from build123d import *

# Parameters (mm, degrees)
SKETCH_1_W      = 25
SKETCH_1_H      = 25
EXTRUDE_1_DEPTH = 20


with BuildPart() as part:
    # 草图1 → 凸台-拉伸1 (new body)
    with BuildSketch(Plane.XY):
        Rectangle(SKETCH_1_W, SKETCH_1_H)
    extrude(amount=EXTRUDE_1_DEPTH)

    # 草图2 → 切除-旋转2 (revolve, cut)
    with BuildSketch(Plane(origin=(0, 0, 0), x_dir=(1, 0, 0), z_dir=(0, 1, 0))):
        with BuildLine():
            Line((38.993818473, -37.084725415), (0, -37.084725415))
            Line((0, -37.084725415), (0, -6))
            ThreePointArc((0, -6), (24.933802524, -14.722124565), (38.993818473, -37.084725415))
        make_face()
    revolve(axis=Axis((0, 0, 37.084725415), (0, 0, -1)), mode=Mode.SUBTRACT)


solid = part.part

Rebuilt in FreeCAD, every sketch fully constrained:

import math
import FreeCAD as App
import Part
import Sketcher

V = App.Vector

doc = App.newDocument("Part")
body = doc.addObject("PartDesign::Body", "Body")

# Sketch on XY plane
sketch1 = body.newObject("Sketcher::SketchObject", "Sketch")
sketch1.AttachmentSupport = (doc.getObject("XY_Plane"), [""])
sketch1.MapMode = "FlatFace"
sketch1.addGeometry(Part.LineSegment(V(-12.5, 12.5, 0), V(-12.5, -12.5, 0)), False)
sketch1.addGeometry(Part.LineSegment(V(-12.5, -12.5, 0), V(12.5, -12.5, 0)), False)
sketch1.addGeometry(Part.LineSegment(V(12.5, -12.5, 0), V(12.5, 12.5, 0)), False)
sketch1.addGeometry(Part.LineSegment(V(12.5, 12.5, 0), V(-12.5, 12.5, 0)), False)
sketch1.addConstraint(Sketcher.Constraint("Coincident", 0, 2, 1, 1))
sketch1.addConstraint(Sketcher.Constraint("Coincident", 1, 2, 2, 1))
sketch1.addConstraint(Sketcher.Constraint("Coincident", 2, 2, 3, 1))
sketch1.addConstraint(Sketcher.Constraint("Coincident", 3, 2, 0, 1))
sketch1.addConstraint(Sketcher.Constraint("Vertical", 0))
sketch1.addConstraint(Sketcher.Constraint("Horizontal", 1))
sketch1.addConstraint(Sketcher.Constraint("Vertical", 2))
sketch1.addConstraint(Sketcher.Constraint("Horizontal", 3))
sketch1.addConstraint(Sketcher.Constraint("Symmetric", 0, 2, 2, 2, -1, 1))
sketch1.addConstraint(Sketcher.Constraint("Equal", 3, 0))
sketch1.addConstraint(Sketcher.Constraint("DistanceX", 1, 1, 1, 2, 25.0))
pad1 = body.newObject("PartDesign::Pad", "Pad")
pad1.Profile = sketch1
pad1.Length = 20

# Sketch on XZ plane
sketch2 = body.newObject("Sketcher::SketchObject", "Sketch001")
sketch2.AttachmentSupport = (doc.getObject("XZ_Plane"), [""])
sketch2.MapMode = "FlatFace"
sketch2.addGeometry(Part.LineSegment(V(0, 37.084725, 0), V(38.993818, 37.084725, 0)), False)
sketch2.addGeometry(Part.ArcOfCircle(Part.Circle(V(0, 46, 0), V(0, 0, 1), 40), math.radians(-90), math.radians(-12.878355)), False)
sketch2.addGeometry(Part.LineSegment(V(0, 6, 0), V(0, 37.084725, 0)), False)
sketch2.addConstraint(Sketcher.Constraint("Coincident", 0, 2, 1, 2))
sketch2.addConstraint(Sketcher.Constraint("Coincident", 1, 1, 2, 1))
sketch2.addConstraint(Sketcher.Constraint("Coincident", 2, 2, 0, 1))
sketch2.addConstraint(Sketcher.Constraint("Horizontal", 0))
sketch2.addConstraint(Sketcher.Constraint("Vertical", 2))
sketch2.addConstraint(Sketcher.Constraint("PointOnObject", 1, 3, -2))
sketch2.addConstraint(Sketcher.Constraint("PointOnObject", 1, 1, -2))
sketch2.addConstraint(Sketcher.Constraint("Radius", 1, 40.0))
sketch2.addConstraint(Sketcher.Constraint("DistanceY", -1, 1, 1, 3, 46.0))
sketch2.addConstraint(Sketcher.Constraint("DistanceX", 0, 1, 0, 2, 38.993818))
groove = body.newObject("PartDesign::Groove", "Groove")
groove.Profile = sketch2
groove.ReferenceAxis = (sketch2, ["V_Axis"])
groove.Angle = 360

doc.recompute()
